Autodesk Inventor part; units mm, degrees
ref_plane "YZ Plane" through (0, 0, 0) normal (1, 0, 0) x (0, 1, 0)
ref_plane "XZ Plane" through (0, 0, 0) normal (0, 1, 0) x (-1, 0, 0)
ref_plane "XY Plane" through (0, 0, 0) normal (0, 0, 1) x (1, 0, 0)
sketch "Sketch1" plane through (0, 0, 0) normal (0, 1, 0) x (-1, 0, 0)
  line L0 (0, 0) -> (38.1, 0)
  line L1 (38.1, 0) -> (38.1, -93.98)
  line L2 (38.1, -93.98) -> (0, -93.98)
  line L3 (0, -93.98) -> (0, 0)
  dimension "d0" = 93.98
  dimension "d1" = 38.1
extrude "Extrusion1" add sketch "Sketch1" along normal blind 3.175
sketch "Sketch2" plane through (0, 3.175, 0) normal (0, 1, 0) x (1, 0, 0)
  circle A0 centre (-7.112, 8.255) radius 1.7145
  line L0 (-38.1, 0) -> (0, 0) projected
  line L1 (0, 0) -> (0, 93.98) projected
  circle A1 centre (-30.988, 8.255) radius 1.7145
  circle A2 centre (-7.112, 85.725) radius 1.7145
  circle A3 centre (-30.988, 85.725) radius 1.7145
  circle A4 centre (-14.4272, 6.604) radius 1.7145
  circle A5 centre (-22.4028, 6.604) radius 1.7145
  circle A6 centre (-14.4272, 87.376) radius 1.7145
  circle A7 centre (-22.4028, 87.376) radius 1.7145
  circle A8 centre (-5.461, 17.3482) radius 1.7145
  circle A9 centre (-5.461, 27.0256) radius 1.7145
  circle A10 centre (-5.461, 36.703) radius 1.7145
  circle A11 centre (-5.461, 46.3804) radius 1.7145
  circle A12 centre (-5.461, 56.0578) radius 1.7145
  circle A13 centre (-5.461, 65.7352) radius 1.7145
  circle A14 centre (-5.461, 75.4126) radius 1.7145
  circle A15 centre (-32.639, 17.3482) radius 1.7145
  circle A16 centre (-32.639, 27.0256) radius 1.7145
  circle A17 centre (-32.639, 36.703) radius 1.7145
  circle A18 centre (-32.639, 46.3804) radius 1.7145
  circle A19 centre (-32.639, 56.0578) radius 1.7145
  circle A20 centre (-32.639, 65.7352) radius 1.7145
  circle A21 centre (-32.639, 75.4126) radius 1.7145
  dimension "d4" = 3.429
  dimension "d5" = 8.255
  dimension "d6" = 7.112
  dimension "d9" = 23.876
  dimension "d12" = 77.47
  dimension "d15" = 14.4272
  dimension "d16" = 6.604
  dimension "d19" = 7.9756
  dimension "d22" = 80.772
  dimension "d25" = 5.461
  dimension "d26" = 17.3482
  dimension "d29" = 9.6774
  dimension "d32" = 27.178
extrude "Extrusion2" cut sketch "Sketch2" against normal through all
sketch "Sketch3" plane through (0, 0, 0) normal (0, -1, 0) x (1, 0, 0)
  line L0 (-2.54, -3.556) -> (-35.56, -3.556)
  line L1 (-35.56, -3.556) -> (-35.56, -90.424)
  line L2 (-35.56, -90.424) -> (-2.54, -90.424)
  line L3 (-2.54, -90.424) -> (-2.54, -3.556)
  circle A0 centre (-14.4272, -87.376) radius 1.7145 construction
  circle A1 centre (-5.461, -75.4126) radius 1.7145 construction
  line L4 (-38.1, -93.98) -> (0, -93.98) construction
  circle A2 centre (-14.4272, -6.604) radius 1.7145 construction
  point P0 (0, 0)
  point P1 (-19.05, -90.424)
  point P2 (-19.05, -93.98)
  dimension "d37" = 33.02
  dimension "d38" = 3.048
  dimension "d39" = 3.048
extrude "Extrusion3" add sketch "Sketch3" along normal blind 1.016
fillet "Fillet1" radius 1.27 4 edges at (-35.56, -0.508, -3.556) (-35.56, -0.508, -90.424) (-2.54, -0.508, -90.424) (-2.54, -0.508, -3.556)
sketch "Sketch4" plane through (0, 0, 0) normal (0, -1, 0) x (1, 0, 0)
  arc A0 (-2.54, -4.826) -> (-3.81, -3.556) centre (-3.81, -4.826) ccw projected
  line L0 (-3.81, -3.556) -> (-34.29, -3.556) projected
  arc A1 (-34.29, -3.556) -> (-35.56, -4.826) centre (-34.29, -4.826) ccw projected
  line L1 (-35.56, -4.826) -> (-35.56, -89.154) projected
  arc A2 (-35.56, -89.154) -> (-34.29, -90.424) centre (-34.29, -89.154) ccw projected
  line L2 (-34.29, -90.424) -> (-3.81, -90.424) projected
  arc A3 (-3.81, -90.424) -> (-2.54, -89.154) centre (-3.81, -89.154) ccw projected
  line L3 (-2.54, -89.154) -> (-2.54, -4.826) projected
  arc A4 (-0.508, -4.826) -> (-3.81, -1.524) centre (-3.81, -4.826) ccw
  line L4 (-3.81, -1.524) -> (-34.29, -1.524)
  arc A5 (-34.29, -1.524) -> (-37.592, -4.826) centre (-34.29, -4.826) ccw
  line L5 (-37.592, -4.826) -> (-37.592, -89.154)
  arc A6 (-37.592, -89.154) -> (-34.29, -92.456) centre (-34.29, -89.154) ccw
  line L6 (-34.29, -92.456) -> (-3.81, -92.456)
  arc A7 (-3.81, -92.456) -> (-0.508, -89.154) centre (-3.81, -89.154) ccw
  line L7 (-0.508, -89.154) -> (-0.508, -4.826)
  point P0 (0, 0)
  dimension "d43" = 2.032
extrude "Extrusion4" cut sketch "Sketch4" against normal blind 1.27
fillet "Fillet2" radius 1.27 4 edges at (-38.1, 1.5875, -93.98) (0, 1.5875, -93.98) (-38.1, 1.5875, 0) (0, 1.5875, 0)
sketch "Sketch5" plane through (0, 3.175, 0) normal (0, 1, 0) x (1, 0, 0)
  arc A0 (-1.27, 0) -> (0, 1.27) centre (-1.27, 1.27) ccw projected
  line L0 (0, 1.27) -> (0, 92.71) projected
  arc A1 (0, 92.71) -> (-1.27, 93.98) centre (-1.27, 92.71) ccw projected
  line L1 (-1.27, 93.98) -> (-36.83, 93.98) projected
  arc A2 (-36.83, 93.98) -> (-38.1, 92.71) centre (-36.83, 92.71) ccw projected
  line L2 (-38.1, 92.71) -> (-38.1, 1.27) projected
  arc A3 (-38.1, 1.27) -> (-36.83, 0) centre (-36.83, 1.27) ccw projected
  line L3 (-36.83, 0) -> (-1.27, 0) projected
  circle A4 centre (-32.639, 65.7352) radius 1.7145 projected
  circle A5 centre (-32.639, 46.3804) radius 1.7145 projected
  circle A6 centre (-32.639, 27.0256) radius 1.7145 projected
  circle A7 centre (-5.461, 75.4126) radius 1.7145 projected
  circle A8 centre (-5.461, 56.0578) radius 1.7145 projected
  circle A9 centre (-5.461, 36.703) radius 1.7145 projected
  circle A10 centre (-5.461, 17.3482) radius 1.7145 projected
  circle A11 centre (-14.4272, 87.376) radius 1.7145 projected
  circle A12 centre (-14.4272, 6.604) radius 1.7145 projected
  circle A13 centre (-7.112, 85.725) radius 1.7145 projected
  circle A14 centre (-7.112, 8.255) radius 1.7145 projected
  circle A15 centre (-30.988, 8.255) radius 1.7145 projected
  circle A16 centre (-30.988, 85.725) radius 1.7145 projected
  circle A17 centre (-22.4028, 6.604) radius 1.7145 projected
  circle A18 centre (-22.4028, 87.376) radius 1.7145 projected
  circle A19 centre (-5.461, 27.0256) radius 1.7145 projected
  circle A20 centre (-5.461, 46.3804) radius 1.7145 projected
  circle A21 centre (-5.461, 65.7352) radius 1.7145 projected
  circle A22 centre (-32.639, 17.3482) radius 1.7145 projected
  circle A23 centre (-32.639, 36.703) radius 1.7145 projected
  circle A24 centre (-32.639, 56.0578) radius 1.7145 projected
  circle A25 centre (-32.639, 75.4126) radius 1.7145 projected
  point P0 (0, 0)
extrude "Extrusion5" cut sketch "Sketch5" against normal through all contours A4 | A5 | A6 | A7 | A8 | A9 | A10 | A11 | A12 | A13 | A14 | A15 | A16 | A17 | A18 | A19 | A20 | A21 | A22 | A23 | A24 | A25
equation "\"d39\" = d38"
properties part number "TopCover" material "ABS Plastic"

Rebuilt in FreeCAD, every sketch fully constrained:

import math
import FreeCAD as App
import Part
import Sketcher

V = App.Vector
Q = App.Units.Quantity


def edges_at(feature, points):
    """Names of the edges that pass closest to the given points."""
    edges = feature.Shape.Edges
    near = lambda p: min(range(len(edges)), key=lambda i: edges[i].distToShape(Part.Vertex(*p))[0])
    return sorted({f"Edge{near(p) + 1}" for p in points})

doc = App.newDocument("Part")
params = doc.addObject("Spreadsheet::Sheet", "Params")
for row, (alias, value) in enumerate([
    ("sketch1_width", "1.5 in"),
    ("sketch1_height", "3.7 in"),
    ("pad1_length", "0.125 in"),
    ("sketch2_diameter", "0.135 in"),
    ("sketch3_width", "1.3 in"),
    ("sketch3_height", "3.42 in"),
    ("pad2_length", "0.04 in"),
    ("fillet_radius", "0.05 in"),
    ("sketch4_radius", "0.13 in"),
    ("sketch4_radius2", "0.05 in"),
    ("sketch4_width", "1.2 in"),
    ("sketch4_height", "3.32 in"),
    ("pocket2_length", "0.05 in"),
    ("fillet2_radius", "0.05 in"),
    ("sketch5_diameter", "0.135 in"),
], start=1):
    params.set(f"A{row}", alias)
    params.set(f"B{row}", "=" + value)
    params.setAlias(f"B{row}", alias)

body = doc.addObject("PartDesign::Body", "Body")

# Sketch on XZ plane
sketch1 = doc.addObject("Sketcher::SketchObject", "Sketch")
body.addObject(sketch1)
sketch1.AttachmentSupport = (doc.XZ_Plane, [""])
sketch1.MapMode = "FlatFace"
sketch1.addGeometry([
    Part.LineSegment(V(-38, 0, 0), V(0, 0, 0)),
    Part.LineSegment(V(0, 0, 0), V(0, -94, 0)),
    Part.LineSegment(V(0, -94, 0), V(-38, -94, 0)),
    Part.LineSegment(V(-38, -94, 0), V(-38, 0, 0)),
], False)
sketch1.addConstraint([
    Sketcher.Constraint("Coincident", 0, 2, 1, 1),
    Sketcher.Constraint("Coincident", 1, 2, 2, 1),
    Sketcher.Constraint("Coincident", 2, 2, 3, 1),
    Sketcher.Constraint("Coincident", 3, 2, 0, 1),
    Sketcher.Constraint("Horizontal", 0),
    Sketcher.Constraint("Vertical", 1),
    Sketcher.Constraint("Horizontal", 2),
    Sketcher.Constraint("Vertical", 3),
    Sketcher.Constraint("Coincident", 0, 2, -1, 1),
    Sketcher.Constraint("DistanceX", 0, 1, 0, 2, Q("1.5 in")),
    Sketcher.Constraint("DistanceY", 1, 2, 1, 1, Q("3.7 in")),
])
sketch1.setExpression("Constraints[9]", "Params.sketch1_width")
sketch1.setExpression("Constraints[10]", "Params.sketch1_height")
pad1 = doc.addObject("PartDesign::Pad", "Pad")
body.addObject(pad1)
pad1.Profile = sketch1
pad1.setExpression("Length", "Params.pad1_length")
pad1.Reversed = True

# Sketch on XZ plane
sketch2 = doc.addObject("Sketcher::SketchObject", "Sketch001")
body.addObject(sketch2)
sketch2.AttachmentSupport = (doc.XZ_Plane, [""])
sketch2.MapMode = "FlatFace"
sketch2.AttachmentOffset = App.Placement(V(0, 0, -0.125 * 25.4), App.Rotation())
sketch2.addGeometry([
    Part.Circle(V(-7.1, -8.3, 0), V(0, 0, 1), 1.7),  # 0
    Part.Circle(V(-31, -8.3, 0), V(0, 0, 1), 1.7),  # 1
    Part.Circle(V(-7.1, -85.7, 0), V(0, 0, 1), 1.7),  # 2
    Part.Circle(V(-31, -85.7, 0), V(0, 0, 1), 1.7),  # 3
    Part.Circle(V(-14.4, -6.6, 0), V(0, 0, 1), 1.7),  # 4
    Part.Circle(V(-22.4, -6.6, 0), V(0, 0, 1), 1.7),  # 5
    Part.Circle(V(-14.4, -87.4, 0), V(0, 0, 1), 1.7),  # 6
    Part.Circle(V(-22.4, -87.4, 0), V(0, 0, 1), 1.7),  # 7
    Part.Circle(V(-5.5, -17.3, 0), V(0, 0, 1), 1.7),  # 8
    Part.Circle(V(-5.5, -27, 0), V(0, 0, 1), 1.7),  # 9
    Part.Circle(V(-5.5, -36.7, 0), V(0, 0, 1), 1.7),  # 10
    Part.Circle(V(-5.5, -46.4, 0), V(0, 0, 1), 1.7),  # 11
    Part.Circle(V(-5.5, -56.1, 0), V(0, 0, 1), 1.7),  # 12
    Part.Circle(V(-5.5, -65.7, 0), V(0, 0, 1), 1.7),  # 13
    Part.Circle(V(-5.5, -75.4, 0), V(0, 0, 1), 1.7),  # 14
    Part.Circle(V(-32.6, -17.3, 0), V(0, 0, 1), 1.7),  # 15
    Part.Circle(V(-32.6, -27, 0), V(0, 0, 1), 1.7),  # 16
    Part.Circle(V(-32.6, -36.7, 0), V(0, 0, 1), 1.7),  # 17
    Part.Circle(V(-32.6, -46.4, 0), V(0, 0, 1), 1.7),  # 18
    Part.Circle(V(-32.6, -56.1, 0), V(0, 0, 1), 1.7),  # 19
    Part.Circle(V(-32.6, -65.7, 0), V(0, 0, 1), 1.7),  # 20
    Part.Circle(V(-32.6, -75.4, 0), V(0, 0, 1), 1.7),  # 21
], False)
sketch2.addConstraint([
    Sketcher.Constraint("Equal", 0, 1),
    Sketcher.Constraint("Equal", 1, 2),
    Sketcher.Constraint("Equal", 2, 3),
    Sketcher.Constraint("Equal", 3, 4),
    Sketcher.Constraint("Equal", 4, 5),
    Sketcher.Constraint("Equal", 5, 6),
    Sketcher.Constraint("Equal", 6, 7),
    Sketcher.Constraint("Equal", 7, 8),
    Sketcher.Constraint("Equal", 8, 9),
    Sketcher.Constraint("Equal", 9, 10),
    Sketcher.Constraint("Equal", 10, 11),
    Sketcher.Constraint("Equal", 11, 12),
    Sketcher.Constraint("Equal", 12, 13),
    Sketcher.Constraint("Equal", 13, 14),
    Sketcher.Constraint("Equal", 14, 15),
    Sketcher.Constraint("Equal", 15, 16),
    Sketcher.Constraint("Equal", 16, 17),
    Sketcher.Constraint("Equal", 17, 18),
    Sketcher.Constraint("Equal", 18, 19),
    Sketcher.Constraint("Equal", 19, 20),
    Sketcher.Constraint("Equal", 20, 21),
    Sketcher.Constraint("Horizontal", 0, 3, 1, 3),
    Sketcher.Constraint("Horizontal", 2, 3, 3, 3),
    Sketcher.Constraint("Horizontal", 4, 3, 5, 3),
    Sketcher.Constraint("Horizontal", 6, 3, 7, 3),
    Sketcher.Constraint("Horizontal", 8, 3, 15, 3),
    Sketcher.Constraint("Horizontal", 9, 3, 16, 3),
    Sketcher.Constraint("Horizontal", 10, 3, 17, 3),
    Sketcher.Constraint("Horizontal", 11, 3, 18, 3),
    Sketcher.Constraint("Horizontal", 12, 3, 19, 3),
    Sketcher.Constraint("Horizontal", 13, 3, 20, 3),
    Sketcher.Constraint("Horizontal", 14, 3, 21, 3),
    Sketcher.Constraint("Vertical", 0, 3, 2, 3),
    Sketcher.Constraint("Vertical", 1, 3, 3, 3),
    Sketcher.Constraint("Vertical", 4, 3, 6, 3),
    Sketcher.Constraint("Vertical", 5, 3, 7, 3),
    Sketcher.Constraint("Vertical", 8, 3, 9, 3),
    Sketcher.Constraint("Vertical", 9, 3, 10, 3),
    Sketcher.Constraint("Vertical", 10, 3, 11, 3),
    Sketcher.Constraint("Vertical", 11, 3, 12, 3),
    Sketcher.Constraint("Vertical", 12, 3, 13, 3),
    Sketcher.Constraint("Vertical", 13, 3, 14, 3),
    Sketcher.Constraint("Vertical", 15, 3, 16, 3),
    Sketcher.Constraint("Vertical", 16, 3, 17, 3),
    Sketcher.Constraint("Vertical", 17, 3, 18, 3),
    Sketcher.Constraint("Vertical", 18, 3, 19, 3),
    Sketcher.Constraint("Vertical", 19, 3, 20, 3),
    Sketcher.Constraint("Vertical", 20, 3, 21, 3),
    Sketcher.Constraint("Diameter", 0, Q("0.135 in")),
    Sketcher.Constraint("DistanceX", 0, 3, -1, 1, Q("0.28 in")),
    Sketcher.Constraint("DistanceY", 4, 3, -1, 1, Q("0.26 in")),
    Sketcher.Constraint("DistanceX", 1, 3, 0, 3, Q("0.94 in")),
    Sketcher.Constraint("DistanceY", 2, 3, 0, 3, Q("3.05 in")),
    Sketcher.Constraint("DistanceY", 6, 3, 4, 3, Q("3.18 in")),
    Sketcher.Constraint("DistanceX", 15, 3, 8, 3, Q("1.07 in")),
    Sketcher.Constraint("DistanceY", 0, 3, -1, 1, Q("0.325 in")),
    Sketcher.Constraint("DistanceX", 4, 3, -1, 1, Q("0.568 in")),
    Sketcher.Constraint("DistanceX", 8, 3, -1, 1, Q("0.215 in")),
    Sketcher.Constraint("DistanceY", 8, 3, -1, 1, Q("0.683 in")),
    Sketcher.Constraint("DistanceX", 5, 3, 4, 3, Q("0.314 in")),
    Sketcher.Constraint("DistanceY", 9, 3, 8, 3, Q("0.381 in")),
    Sketcher.Constraint("DistanceY", 10, 3, 9, 3, Q("0.381 in")),
    Sketcher.Constraint("DistanceY", 11, 3, 10, 3, Q("0.381 in")),
    Sketcher.Constraint("DistanceY", 12, 3, 11, 3, Q("0.381 in")),
    Sketcher.Constraint("DistanceY", 13, 3, 12, 3, Q("0.381 in")),
    Sketcher.Constraint("DistanceY", 14, 3, 13, 3, Q("0.381 in")),
])
sketch2.setExpression("Constraints[48]", "Params.sketch2_diameter")
pocket1 = doc.addObject("PartDesign::Pocket", "Pocket")
body.addObject(pocket1)
pocket1.Profile = sketch2
pocket1.Type = "ThroughAll"
pocket1.Reversed = True

# Sketch on XZ plane
sketch3 = doc.addObject("Sketcher::SketchObject", "Sketch002")
body.addObject(sketch3)
sketch3.AttachmentSupport = (doc.XZ_Plane, [""])
sketch3.MapMode = "FlatFace"
sketch3.addGeometry([
    Part.LineSegment(V(-3, -90, 0), V(-3, -4, 0)),
    Part.LineSegment(V(-3, -4, 0), V(-36, -4, 0)),
    Part.LineSegment(V(-36, -4, 0), V(-36, -90, 0)),
    Part.LineSegment(V(-36, -90, 0), V(-3, -90, 0)),
], False)
sketch3.addConstraint([
    Sketcher.Constraint("Coincident", 0, 2, 1, 1),
    Sketcher.Constraint("Coincident", 1, 2, 2, 1),
    Sketcher.Constraint("Coincident", 2, 2, 3, 1),
    Sketcher.Constraint("Coincident", 3, 2, 0, 1),
    Sketcher.Constraint("Vertical", 0),
    Sketcher.Constraint("Horizontal", 1),
    Sketcher.Constraint("Vertical", 2),
    Sketcher.Constraint("Horizontal", 3),
    Sketcher.Constraint("DistanceX", 1, 2, 1, 1, Q("1.3 in")),
    Sketcher.Constraint("DistanceY", 0, 1, 0, 2, Q("3.42 in")),
    Sketcher.Constraint("DistanceX", 0, 2, -1, 1, Q("0.1 in")),
    Sketcher.Constraint("DistanceY", 0, 2, -1, 1, Q("0.14 in")),
])
sketch3.setExpression("Constraints[8]", "Params.sketch3_width")
sketch3.setExpression("Constraints[9]", "Params.sketch3_height")
pad2 = doc.addObject("PartDesign::Pad", "Pad001")
body.addObject(pad2)
pad2.Profile = sketch3
pad2.setExpression("Length", "Params.pad2_length")
doc.recompute()

fillet = doc.addObject("PartDesign::Fillet", "Fillet")
body.addObject(fillet)
fillet.Base = (pad2, edges_at(pad2, [
    (-35.56, -0.508, -3.556),
    (-35.56, -0.508, -90.424),
    (-2.54, -0.508, -90.424),
    (-2.54, -0.508, -3.556),
]))
fillet.setExpression("Radius", "Params.fillet_radius")

# Sketch on XZ plane
sketch4 = doc.addObject("Sketcher::SketchObject", "Sketch003")
body.addObject(sketch4)
sketch4.AttachmentSupport = (doc.XZ_Plane, [""])
sketch4.MapMode = "FlatFace"
sketch4.addGeometry([
    Part.LineSegment(V(-0.5, -89.2, 0), V(-0.5, -4.8, 0)),  # 0
    Part.ArcOfCircle(Part.Circle(V(-3.8, -4.8, 0), V(0, 0, 1), 3.3), math.radians(0), math.radians(90)),  # 1
    Part.LineSegment(V(-3.8, -1.5, 0), V(-34.3, -1.5, 0)),  # 2
    Part.ArcOfCircle(Part.Circle(V(-34.3, -4.8, 0), V(0, 0, 1), 3.3), math.radians(90), math.radians(180)),  # 3
    Part.LineSegment(V(-37.6, -4.8, 0), V(-37.6, -89.2, 0)),  # 4
    Part.ArcOfCircle(Part.Circle(V(-34.3, -89.2, 0), V(0, 0, 1), 3.3), math.radians(180), math.radians(270)),  # 5
    Part.LineSegment(V(-34.3, -92.5, 0), V(-3.8, -92.5, 0)),  # 6
    Part.ArcOfCircle(Part.Circle(V(-3.8, -89.2, 0), V(0, 0, 1), 3.3), math.radians(-90), math.radians(0)),  # 7
    Part.ArcOfCircle(Part.Circle(V(-3.8, -4.8, 0), V(0, 0, 1), 1.3), math.radians(0), math.radians(90)),  # 8
    Part.LineSegment(V(-2.5, -4.8, 0), V(-2.5, -89.2, 0)),  # 9
    Part.ArcOfCircle(Part.Circle(V(-3.8, -89.2, 0), V(0, 0, 1), 1.3), math.radians(-90), math.radians(0)),  # 10
    Part.LineSegment(V(-3.8, -90.4, 0), V(-34.3, -90.4, 0)),  # 11
    Part.ArcOfCircle(Part.Circle(V(-34.3, -89.2, 0), V(0, 0, 1), 1.3), math.radians(180), math.radians(270)),  # 12
    Part.LineSegment(V(-35.6, -89.2, 0), V(-35.6, -4.8, 0)),  # 13
    Part.ArcOfCircle(Part.Circle(V(-34.3, -4.8, 0), V(0, 0, 1), 1.3), math.radians(90), math.radians(180)),  # 14
    Part.LineSegment(V(-34.3, -3.6, 0), V(-3.8, -3.6, 0)),  # 15
], False)
sketch4.addConstraint([
    Sketcher.Constraint("Tangent", 0, 2, 1, 1),
    Sketcher.Constraint("Tangent", 1, 2, 2, 1),
    Sketcher.Constraint("Tangent", 2, 2, 3, 1),
    Sketcher.Constraint("Tangent", 3, 2, 4, 1),
    Sketcher.Constraint("Tangent", 4, 2, 5, 1),
    Sketcher.Constraint("Tangent", 5, 2, 6, 1),
    Sketcher.Constraint("Tangent", 6, 2, 7, 1),
    Sketcher.Constraint("Tangent", 7, 2, 0, 1),
    Sketcher.Constraint("Tangent", 8, 1, 9, 1),
    Sketcher.Constraint("Tangent", 9, 2, 10, 2),
    Sketcher.Constraint("Tangent", 10, 1, 11, 1),
    Sketcher.Constraint("Tangent", 11, 2, 12, 2),
    Sketcher.Constraint("Tangent", 12, 1, 13, 1),
    Sketcher.Constraint("Tangent", 13, 2, 14, 2),
    Sketcher.Constraint("Tangent", 14, 1, 15, 1),
    Sketcher.Constraint("Tangent", 15, 2, 8, 2),
    Sketcher.Constraint("Vertical", 0),
    Sketcher.Constraint("Horizontal", 2),
    Sketcher.Constraint("Vertical", 4),
    Sketcher.Constraint("Horizontal", 6),
    Sketcher.Constraint("Vertical", 9),
    Sketcher.Constraint("Horizontal", 11),
    Sketcher.Constraint("Vertical", 13),
    Sketcher.Constraint("Horizontal", 15),
    Sketcher.Constraint("Coincident", 8, 3, 1, 3),
    Sketcher.Constraint("Coincident", 10, 3, 7, 3),
    Sketcher.Constraint("Coincident", 12, 3, 5, 3),
    Sketcher.Constraint("Equal", 1, 3),
    Sketcher.Constraint("Equal", 3, 5),
    Sketcher.Constraint("Equal", 5, 7),
    Sketcher.Constraint("Equal", 12, 14),
    Sketcher.Constraint("Radius", 1, Q("0.13 in")),
    Sketcher.Constraint("Radius", 8, Q("0.05 in")),
    Sketcher.Constraint("DistanceX", 2, 2, 2, 1, Q("1.2 in")),
    Sketcher.Constraint("DistanceY", 0, 1, 0, 2, Q("3.32 in")),
    Sketcher.Constraint("DistanceX", 8, 1, -1, 1, Q("0.1 in")),
    Sketcher.Constraint("DistanceY", 1, 3, -1, 1, Q("0.19 in")),
])
sketch4.setExpression("Constraints[31]", "Params.sketch4_radius")
sketch4.setExpression("Constraints[32]", "Params.sketch4_radius2")
sketch4.setExpression("Constraints[33]", "Params.sketch4_width")
sketch4.setExpression("Constraints[34]", "Params.sketch4_height")
pocket2 = doc.addObject("PartDesign::Pocket", "Pocket001")
body.addObject(pocket2)
pocket2.Profile = sketch4
pocket2.setExpression("Length", "Params.pocket2_length")
doc.recompute()

fillet2 = doc.addObject("PartDesign::Fillet", "Fillet001")
body.addObject(fillet2)
fillet2.Base = (pocket2, edges_at(pocket2, [
    (-38.1, 1.587, -93.98),
    (0, 1.587, -93.98),
    (-38.1, 1.587, 0),
    (0, 1.587, 0),
]))
fillet2.setExpression("Radius", "Params.fillet2_radius")

# Sketch on XZ plane
sketch5 = doc.addObject("Sketcher::SketchObject", "Sketch004")
body.addObject(sketch5)
sketch5.AttachmentSupport = (doc.XZ_Plane, [""])
sketch5.MapMode = "FlatFace"
sketch5.AttachmentOffset = App.Placement(V(0, 0, -0.125 * 25.4), App.Rotation())
sketch5.addGeometry([
    Part.Circle(V(-32.6, -65.7, 0), V(0, 0, 1), 1.7),  # 0
    Part.Circle(V(-32.6, -46.4, 0), V(0, 0, 1), 1.7),  # 1
    Part.Circle(V(-32.6, -27, 0), V(0, 0, 1), 1.7),  # 2
    Part.Circle(V(-5.5, -75.4, 0), V(0, 0, 1), 1.7),  # 3
    Part.Circle(V(-5.5, -56.1, 0), V(0, 0, 1), 1.7),  # 4
    Part.Circle(V(-5.5, -36.7, 0), V(0, 0, 1), 1.7),  # 5
    Part.Circle(V(-5.5, -17.3, 0), V(0, 0, 1), 1.7),  # 6
    Part.Circle(V(-14.4, -87.4, 0), V(0, 0, 1), 1.7),  # 7
    Part.Circle(V(-14.4, -6.6, 0), V(0, 0, 1), 1.7),  # 8
    Part.Circle(V(-7.1, -85.7, 0), V(0, 0, 1), 1.7),  # 9
    Part.Circle(V(-7.1, -8.3, 0), V(0, 0, 1), 1.7),  # 10
    Part.Circle(V(-31, -8.3, 0), V(0, 0, 1), 1.7),  # 11
    Part.Circle(V(-31, -85.7, 0), V(0, 0, 1), 1.7),  # 12
    Part.Circle(V(-22.4, -6.6, 0), V(0, 0, 1), 1.7),  # 13
    Part.Circle(V(-22.4, -87.4, 0), V(0, 0, 1), 1.7),  # 14
    Part.Circle(V(-5.5, -27, 0), V(0, 0, 1), 1.7),  # 15
    Part.Circle(V(-5.5, -46.4, 0), V(0, 0, 1), 1.7),  # 16
    Part.Circle(V(-5.5, -65.7, 0), V(0, 0, 1), 1.7),  # 17
    Part.Circle(V(-32.6, -17.3, 0), V(0, 0, 1), 1.7),  # 18
    Part.Circle(V(-32.6, -36.7, 0), V(0, 0, 1), 1.7),  # 19
    Part.Circle(V(-32.6, -56.1, 0), V(0, 0, 1), 1.7),  # 20
    Part.Circle(V(-32.6, -75.4, 0), V(0, 0, 1), 1.7),  # 21
], False)
sketch5.addConstraint([
    Sketcher.Constraint("Equal", 0, 1),
    Sketcher.Constraint("Equal", 1, 2),
    Sketcher.Constraint("Equal", 2, 3),
    Sketcher.Constraint("Equal", 3, 4),
    Sketcher.Constraint("Equal", 4, 5),
    Sketcher.Constraint("Equal", 5, 6),
    Sketcher.Constraint("Equal", 6, 7),
    Sketcher.Constraint("Equal", 7, 8),
    Sketcher.Constraint("Equal", 8, 9),
    Sketcher.Constraint("Equal", 9, 10),
    Sketcher.Constraint("Equal", 10, 11),
    Sketcher.Constraint("Equal", 11, 12),
    Sketcher.Constraint("Equal", 12, 13),
    Sketcher.Constraint("Equal", 13, 14),
    Sketcher.Constraint("Equal", 14, 15),
    Sketcher.Constraint("Equal", 15, 16),
    Sketcher.Constraint("Equal", 16, 17),
    Sketcher.Constraint("Equal", 17, 18),
    Sketcher.Constraint("Equal", 18, 19),
    Sketcher.Constraint("Equal", 19, 20),
    Sketcher.Constraint("Equal", 20, 21),
    Sketcher.Constraint("Horizontal", 10, 3, 11, 3),
    Sketcher.Constraint("Horizontal", 9, 3, 12, 3),
    Sketcher.Constraint("Horizontal", 8, 3, 13, 3),
    Sketcher.Constraint("Horizontal", 7, 3, 14, 3),
    Sketcher.Constraint("Horizontal", 2, 3, 15, 3),
    Sketcher.Constraint("Horizontal", 1, 3, 16, 3),
    Sketcher.Constraint("Horizontal", 0, 3, 17, 3),
    Sketcher.Constraint("Horizontal", 6, 3, 18, 3),
    Sketcher.Constraint("Horizontal", 5, 3, 19, 3),
    Sketcher.Constraint("Horizontal", 4, 3, 20, 3),
    Sketcher.Constraint("Horizontal", 3, 3, 21, 3),
    Sketcher.Constraint("Vertical", 0, 3, 1, 3),
    Sketcher.Constraint("Vertical", 1, 3, 2, 3),
    Sketcher.Constraint("Vertical", 3, 3, 4, 3),
    Sketcher.Constraint("Vertical", 4, 3, 5, 3),
    Sketcher.Constraint("Vertical", 5, 3, 6, 3),
    Sketcher.Constraint("Vertical", 7, 3, 8, 3),
    Sketcher.Constraint("Vertical", 9, 3, 10, 3),
    Sketcher.Constraint("Vertical", 11, 3, 12, 3),
    Sketcher.Constraint("Vertical", 13, 3, 14, 3),
    Sketcher.Constraint("Vertical", 6, 3, 15, 3),
    Sketcher.Constraint("Vertical", 15, 3, 16, 3),
    Sketcher.Constraint("Vertical", 16, 3, 17, 3),
    Sketcher.Constraint("Vertical", 2, 3, 18, 3),
    Sketcher.Constraint("Vertical", 18, 3, 19, 3),
    Sketcher.Constraint("Vertical", 19, 3, 20, 3),
    Sketcher.Constraint("Vertical", 20, 3, 21, 3),
    Sketcher.Constraint("Diameter", 0, Q("0.135 in")),
    Sketcher.Constraint("DistanceY", 7, 3, -1, 1, Q("3.44 in")),
    Sketcher.Constraint("DistanceY", 8, 3, -1, 1, Q("0.26 in")),
    Sketcher.Constraint("DistanceX", 9, 3, -1, 1, Q("0.28 in")),
    Sketcher.Constraint("DistanceX", 11, 3, -1, 1, Q("1.22 in")),
    Sketcher.Constraint("DistanceX", 0, 3, 3, 3, Q("1.07 in")),
    Sketcher.Constraint("DistanceY", 5, 3, 10, 3, Q("1.12 in")),
    Sketcher.Constraint("DistanceX", 0, 3, -1, 1, Q("1.285 in")),
    Sketcher.Constraint("DistanceY", 0, 3, -1, 1, Q("2.588 in")),
    Sketcher.Constraint("DistanceY", 1, 3, -1, 1, Q("1.826 in")),
    Sketcher.Constraint("DistanceY", 2, 3, -1, 1, Q("1.064 in")),
    Sketcher.Constraint("DistanceY", 3, 3, -1, 1, Q("2.969 in")),
    Sketcher.Constraint("DistanceY", 4, 3, -1, 1, Q("2.207 in")),
    Sketcher.Constraint("DistanceY", 5, 3, -1, 1, Q("1.445 in")),
    Sketcher.Constraint("DistanceY", 6, 3, -1, 1, Q("0.683 in")),
    Sketcher.Constraint("DistanceX", 7, 3, -1, 1, Q("0.568 in")),
    Sketcher.Constraint("DistanceY", 9, 3, -1, 1, Q("3.375 in")),
    Sketcher.Constraint("DistanceX", 13, 3, -1, 1, Q("0.882 in")),
])
sketch5.setExpression("Constraints[48]", "Params.sketch5_diameter")
pocket3 = doc.addObject("PartDesign::Pocket", "Pocket002")
body.addObject(pocket3)
pocket3.Profile = sketch5
pocket3.Type = "ThroughAll"
pocket3.Reversed = True

doc.recompute()
